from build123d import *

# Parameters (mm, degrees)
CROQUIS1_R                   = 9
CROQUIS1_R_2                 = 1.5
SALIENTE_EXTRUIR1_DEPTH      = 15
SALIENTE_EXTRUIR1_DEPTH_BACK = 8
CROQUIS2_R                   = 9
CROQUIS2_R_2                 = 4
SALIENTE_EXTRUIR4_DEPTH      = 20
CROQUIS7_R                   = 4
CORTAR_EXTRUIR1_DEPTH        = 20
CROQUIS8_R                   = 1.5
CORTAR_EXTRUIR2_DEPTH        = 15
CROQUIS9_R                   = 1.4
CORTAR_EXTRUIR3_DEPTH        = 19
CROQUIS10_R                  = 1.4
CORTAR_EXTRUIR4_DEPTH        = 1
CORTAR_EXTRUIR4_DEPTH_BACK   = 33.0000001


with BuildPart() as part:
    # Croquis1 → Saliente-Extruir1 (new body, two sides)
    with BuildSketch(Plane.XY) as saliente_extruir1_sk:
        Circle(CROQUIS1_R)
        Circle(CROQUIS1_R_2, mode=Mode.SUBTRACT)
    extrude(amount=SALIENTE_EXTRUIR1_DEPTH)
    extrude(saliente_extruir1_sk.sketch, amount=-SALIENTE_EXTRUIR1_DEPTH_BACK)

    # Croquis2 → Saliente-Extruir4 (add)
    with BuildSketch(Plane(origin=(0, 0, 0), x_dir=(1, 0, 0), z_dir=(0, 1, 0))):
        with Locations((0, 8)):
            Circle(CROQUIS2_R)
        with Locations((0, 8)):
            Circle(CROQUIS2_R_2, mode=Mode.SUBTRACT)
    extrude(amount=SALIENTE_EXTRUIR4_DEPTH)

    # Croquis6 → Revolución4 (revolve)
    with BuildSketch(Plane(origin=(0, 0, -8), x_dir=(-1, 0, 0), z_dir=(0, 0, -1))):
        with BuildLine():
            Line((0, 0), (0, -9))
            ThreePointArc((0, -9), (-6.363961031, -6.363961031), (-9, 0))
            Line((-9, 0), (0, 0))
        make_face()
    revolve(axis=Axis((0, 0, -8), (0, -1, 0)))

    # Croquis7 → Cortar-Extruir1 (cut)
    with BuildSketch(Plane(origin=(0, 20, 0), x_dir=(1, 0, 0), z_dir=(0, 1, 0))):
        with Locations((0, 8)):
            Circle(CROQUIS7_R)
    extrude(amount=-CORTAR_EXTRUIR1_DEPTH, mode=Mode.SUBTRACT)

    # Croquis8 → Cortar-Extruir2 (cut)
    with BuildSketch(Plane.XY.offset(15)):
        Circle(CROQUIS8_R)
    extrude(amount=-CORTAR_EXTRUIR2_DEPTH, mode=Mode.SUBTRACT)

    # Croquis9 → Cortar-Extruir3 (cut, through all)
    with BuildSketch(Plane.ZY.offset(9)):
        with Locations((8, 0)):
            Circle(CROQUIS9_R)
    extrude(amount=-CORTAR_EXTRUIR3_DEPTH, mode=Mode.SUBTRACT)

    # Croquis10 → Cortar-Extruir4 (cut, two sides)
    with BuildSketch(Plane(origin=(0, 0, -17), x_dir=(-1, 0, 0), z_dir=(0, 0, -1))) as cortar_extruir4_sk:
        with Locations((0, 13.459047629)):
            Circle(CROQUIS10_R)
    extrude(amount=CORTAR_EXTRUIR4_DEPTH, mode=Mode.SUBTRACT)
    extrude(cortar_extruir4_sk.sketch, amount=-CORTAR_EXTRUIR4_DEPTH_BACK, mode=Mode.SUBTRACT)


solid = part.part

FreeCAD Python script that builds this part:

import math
import FreeCAD as App
import Part
import Sketcher
Q = App.Units.Quantity

doc = App.newDocument("Part")
body = doc.addObject("PartDesign::Body", "Body")

sketch1 = body.newObject("Sketcher::SketchObject", "Sketch")
sketch1.AttachmentSupport = (doc.getObject("XY_Plane"), [""])
sketch1.MapMode = "FlatFace"
sketch1.addGeometry([
    Part.Circle(App.Vector(0, 0, 0), App.Vector(0, 0, 1), 9),
    Part.Circle(App.Vector(0, 0, 0), App.Vector(0, 0, 1), 1.5),
], False)
sketch1.addConstraint([
    Sketcher.Constraint("Coincident", 0, 3, -1, 1),
    Sketcher.Constraint("Coincident", 1, 3, -1, 1),
    Sketcher.Constraint("Diameter", 0, Q("18 mm")),
    Sketcher.Constraint("Diameter", 1, Q("3 mm")),
])
pad1 = body.newObject("PartDesign::Pad", "Pad")
pad1.Profile = sketch1
pad1.Type = "TwoLengths"
pad1.Length = 15
pad1.Length2 = 8

sketch2 = body.newObject("Sketcher::SketchObject", "Sketch001")
sketch2.AttachmentSupport = (doc.getObject("XZ_Plane"), [""])
sketch2.MapMode = "FlatFace"
sketch2.addGeometry([
    Part.Circle(App.Vector(0, -8, 0), App.Vector(0, 0, 1), 9),
    Part.Circle(App.Vector(0, -8, 0), App.Vector(0, 0, 1), 4),
], False)
sketch2.addConstraint([
    Sketcher.Constraint("Coincident", 1, 3, 0, 3),
    Sketcher.Constraint("PointOnObject", 0, 3, -2),
    Sketcher.Constraint("Diameter", 0, Q("18 mm")),
    Sketcher.Constraint("Diameter", 1, Q("8 mm")),
    Sketcher.Constraint("DistanceY", 0, 3, -1, 1, Q("8 mm")),
])
pad2 = body.newObject("PartDesign::Pad", "Pad001")
pad2.Profile = sketch2
pad2.Length = 20
pad2.Reversed = True

sketch3 = body.newObject("Sketcher::SketchObject", "Sketch002")
sketch3.AttachmentSupport = (doc.getObject("XY_Plane"), [""])
sketch3.MapMode = "FlatFace"
sketch3.AttachmentOffset = App.Placement(App.Vector(0, 0, -8), App.Rotation())
sketch3.addGeometry([
    Part.LineSegment(App.Vector(0, -9, 0), App.Vector(0, 0, 0)),
    Part.LineSegment(App.Vector(0, 0, 0), App.Vector(9, 0, 0)),
    Part.ArcOfCircle(Part.Circle(App.Vector(0, 0, 0), App.Vector(0, 0, 1), 9), math.radians(-90), math.radians(0)),
], False)
sketch3.addConstraint([
    Sketcher.Constraint("Coincident", 0, 2, 1, 1),
    Sketcher.Constraint("Coincident", 1, 2, 2, 2),
    Sketcher.Constraint("Coincident", 2, 1, 0, 1),
    Sketcher.Constraint("Vertical", 0),
    Sketcher.Constraint("Horizontal", 1),
    Sketcher.Constraint("Coincident", 2, 3, -1, 1),
    Sketcher.Constraint("Coincident", 0, 2, -1, 1),
    Sketcher.Constraint("Radius", 2, Q("9 mm")),
])
revolution = body.newObject("PartDesign::Revolution", "Revolution")
revolution.Profile = sketch3
revolution.ReferenceAxis = (sketch3, ["V_Axis"])
revolution.Angle = 360

sketch4 = body.newObject("Sketcher::SketchObject", "Sketch003")
sketch4.AttachmentSupport = (doc.getObject("XZ_Plane"), [""])
sketch4.MapMode = "FlatFace"
sketch4.AttachmentOffset = App.Placement(App.Vector(0, 0, -20), App.Rotation())
sketch4.addGeometry(Part.Circle(App.Vector(0, -8, 0), App.Vector(0, 0, 1), 4), False)
sketch4.addConstraint([
    Sketcher.Constraint("PointOnObject", 0, 3, -2),
    Sketcher.Constraint("Diameter", 0, Q("8 mm")),
    Sketcher.Constraint("DistanceY", 0, 3, -1, 1, Q("8 mm")),
])
pocket1 = body.newObject("PartDesign::Pocket", "Pocket")
pocket1.Profile = sketch4
pocket1.Length = 20
pocket1.Reversed = True

sketch5 = body.newObject("Sketcher::SketchObject", "Sketch004")
sketch5.AttachmentSupport = (doc.getObject("XY_Plane"), [""])
sketch5.MapMode = "FlatFace"
sketch5.AttachmentOffset = App.Placement(App.Vector(0, 0, 15), App.Rotation())
sketch5.addGeometry(Part.Circle(App.Vector(0, 0, 0), App.Vector(0, 0, 1), 1.5), False)
sketch5.addConstraint([
    Sketcher.Constraint("Coincident", 0, 3, -1, 1),
    Sketcher.Constraint("Diameter", 0, Q("3 mm")),
])
pocket2 = body.newObject("PartDesign::Pocket", "Pocket001")
pocket2.Profile = sketch5
pocket2.Length = 15

sketch6 = body.newObject("Sketcher::SketchObject", "Sketch005")
sketch6.AttachmentSupport = (doc.getObject("YZ_Plane"), [""])
sketch6.MapMode = "FlatFace"
sketch6.AttachmentOffset = App.Placement(App.Vector(0, 0, -9), App.Rotation())
sketch6.addGeometry(Part.Circle(App.Vector(0, 8, 0), App.Vector(0, 0, 1), 1.4), False)
sketch6.addConstraint([
    Sketcher.Constraint("PointOnObject", 0, 3, -2),
    Sketcher.Constraint("Diameter", 0, Q("2.8 mm")),
    Sketcher.Constraint("DistanceY", -1, 1, 0, 3, Q("8 mm")),
])
pocket3 = body.newObject("PartDesign::Pocket", "Pocket002")
pocket3.Profile = sketch6
pocket3.Type = "ThroughAll"
pocket3.Reversed = True

sketch7 = body.newObject("Sketcher::SketchObject", "Sketch006")
sketch7.AttachmentSupport = (doc.getObject("XY_Plane"), [""])
sketch7.MapMode = "FlatFace"
sketch7.AttachmentOffset = App.Placement(App.Vector(0, 0, -17), App.Rotation())
sketch7.addGeometry(Part.Circle(App.Vector(0, 13.459048, 0), App.Vector(0, 0, 1), 1.4), False)
sketch7.addConstraint([
    Sketcher.Constraint("PointOnObject", 0, 3, -2),
    Sketcher.Constraint("Diameter", 0, Q("2.8 mm")),
    Sketcher.Constraint("DistanceY", -1, 1, 0, 3, Q("13.459048 mm")),
])
pocket4 = body.newObject("PartDesign::Pocket", "Pocket003")
pocket4.Profile = sketch7
pocket4.Type = "ThroughAll"
pocket4.Midplane = True

doc.recompute()
